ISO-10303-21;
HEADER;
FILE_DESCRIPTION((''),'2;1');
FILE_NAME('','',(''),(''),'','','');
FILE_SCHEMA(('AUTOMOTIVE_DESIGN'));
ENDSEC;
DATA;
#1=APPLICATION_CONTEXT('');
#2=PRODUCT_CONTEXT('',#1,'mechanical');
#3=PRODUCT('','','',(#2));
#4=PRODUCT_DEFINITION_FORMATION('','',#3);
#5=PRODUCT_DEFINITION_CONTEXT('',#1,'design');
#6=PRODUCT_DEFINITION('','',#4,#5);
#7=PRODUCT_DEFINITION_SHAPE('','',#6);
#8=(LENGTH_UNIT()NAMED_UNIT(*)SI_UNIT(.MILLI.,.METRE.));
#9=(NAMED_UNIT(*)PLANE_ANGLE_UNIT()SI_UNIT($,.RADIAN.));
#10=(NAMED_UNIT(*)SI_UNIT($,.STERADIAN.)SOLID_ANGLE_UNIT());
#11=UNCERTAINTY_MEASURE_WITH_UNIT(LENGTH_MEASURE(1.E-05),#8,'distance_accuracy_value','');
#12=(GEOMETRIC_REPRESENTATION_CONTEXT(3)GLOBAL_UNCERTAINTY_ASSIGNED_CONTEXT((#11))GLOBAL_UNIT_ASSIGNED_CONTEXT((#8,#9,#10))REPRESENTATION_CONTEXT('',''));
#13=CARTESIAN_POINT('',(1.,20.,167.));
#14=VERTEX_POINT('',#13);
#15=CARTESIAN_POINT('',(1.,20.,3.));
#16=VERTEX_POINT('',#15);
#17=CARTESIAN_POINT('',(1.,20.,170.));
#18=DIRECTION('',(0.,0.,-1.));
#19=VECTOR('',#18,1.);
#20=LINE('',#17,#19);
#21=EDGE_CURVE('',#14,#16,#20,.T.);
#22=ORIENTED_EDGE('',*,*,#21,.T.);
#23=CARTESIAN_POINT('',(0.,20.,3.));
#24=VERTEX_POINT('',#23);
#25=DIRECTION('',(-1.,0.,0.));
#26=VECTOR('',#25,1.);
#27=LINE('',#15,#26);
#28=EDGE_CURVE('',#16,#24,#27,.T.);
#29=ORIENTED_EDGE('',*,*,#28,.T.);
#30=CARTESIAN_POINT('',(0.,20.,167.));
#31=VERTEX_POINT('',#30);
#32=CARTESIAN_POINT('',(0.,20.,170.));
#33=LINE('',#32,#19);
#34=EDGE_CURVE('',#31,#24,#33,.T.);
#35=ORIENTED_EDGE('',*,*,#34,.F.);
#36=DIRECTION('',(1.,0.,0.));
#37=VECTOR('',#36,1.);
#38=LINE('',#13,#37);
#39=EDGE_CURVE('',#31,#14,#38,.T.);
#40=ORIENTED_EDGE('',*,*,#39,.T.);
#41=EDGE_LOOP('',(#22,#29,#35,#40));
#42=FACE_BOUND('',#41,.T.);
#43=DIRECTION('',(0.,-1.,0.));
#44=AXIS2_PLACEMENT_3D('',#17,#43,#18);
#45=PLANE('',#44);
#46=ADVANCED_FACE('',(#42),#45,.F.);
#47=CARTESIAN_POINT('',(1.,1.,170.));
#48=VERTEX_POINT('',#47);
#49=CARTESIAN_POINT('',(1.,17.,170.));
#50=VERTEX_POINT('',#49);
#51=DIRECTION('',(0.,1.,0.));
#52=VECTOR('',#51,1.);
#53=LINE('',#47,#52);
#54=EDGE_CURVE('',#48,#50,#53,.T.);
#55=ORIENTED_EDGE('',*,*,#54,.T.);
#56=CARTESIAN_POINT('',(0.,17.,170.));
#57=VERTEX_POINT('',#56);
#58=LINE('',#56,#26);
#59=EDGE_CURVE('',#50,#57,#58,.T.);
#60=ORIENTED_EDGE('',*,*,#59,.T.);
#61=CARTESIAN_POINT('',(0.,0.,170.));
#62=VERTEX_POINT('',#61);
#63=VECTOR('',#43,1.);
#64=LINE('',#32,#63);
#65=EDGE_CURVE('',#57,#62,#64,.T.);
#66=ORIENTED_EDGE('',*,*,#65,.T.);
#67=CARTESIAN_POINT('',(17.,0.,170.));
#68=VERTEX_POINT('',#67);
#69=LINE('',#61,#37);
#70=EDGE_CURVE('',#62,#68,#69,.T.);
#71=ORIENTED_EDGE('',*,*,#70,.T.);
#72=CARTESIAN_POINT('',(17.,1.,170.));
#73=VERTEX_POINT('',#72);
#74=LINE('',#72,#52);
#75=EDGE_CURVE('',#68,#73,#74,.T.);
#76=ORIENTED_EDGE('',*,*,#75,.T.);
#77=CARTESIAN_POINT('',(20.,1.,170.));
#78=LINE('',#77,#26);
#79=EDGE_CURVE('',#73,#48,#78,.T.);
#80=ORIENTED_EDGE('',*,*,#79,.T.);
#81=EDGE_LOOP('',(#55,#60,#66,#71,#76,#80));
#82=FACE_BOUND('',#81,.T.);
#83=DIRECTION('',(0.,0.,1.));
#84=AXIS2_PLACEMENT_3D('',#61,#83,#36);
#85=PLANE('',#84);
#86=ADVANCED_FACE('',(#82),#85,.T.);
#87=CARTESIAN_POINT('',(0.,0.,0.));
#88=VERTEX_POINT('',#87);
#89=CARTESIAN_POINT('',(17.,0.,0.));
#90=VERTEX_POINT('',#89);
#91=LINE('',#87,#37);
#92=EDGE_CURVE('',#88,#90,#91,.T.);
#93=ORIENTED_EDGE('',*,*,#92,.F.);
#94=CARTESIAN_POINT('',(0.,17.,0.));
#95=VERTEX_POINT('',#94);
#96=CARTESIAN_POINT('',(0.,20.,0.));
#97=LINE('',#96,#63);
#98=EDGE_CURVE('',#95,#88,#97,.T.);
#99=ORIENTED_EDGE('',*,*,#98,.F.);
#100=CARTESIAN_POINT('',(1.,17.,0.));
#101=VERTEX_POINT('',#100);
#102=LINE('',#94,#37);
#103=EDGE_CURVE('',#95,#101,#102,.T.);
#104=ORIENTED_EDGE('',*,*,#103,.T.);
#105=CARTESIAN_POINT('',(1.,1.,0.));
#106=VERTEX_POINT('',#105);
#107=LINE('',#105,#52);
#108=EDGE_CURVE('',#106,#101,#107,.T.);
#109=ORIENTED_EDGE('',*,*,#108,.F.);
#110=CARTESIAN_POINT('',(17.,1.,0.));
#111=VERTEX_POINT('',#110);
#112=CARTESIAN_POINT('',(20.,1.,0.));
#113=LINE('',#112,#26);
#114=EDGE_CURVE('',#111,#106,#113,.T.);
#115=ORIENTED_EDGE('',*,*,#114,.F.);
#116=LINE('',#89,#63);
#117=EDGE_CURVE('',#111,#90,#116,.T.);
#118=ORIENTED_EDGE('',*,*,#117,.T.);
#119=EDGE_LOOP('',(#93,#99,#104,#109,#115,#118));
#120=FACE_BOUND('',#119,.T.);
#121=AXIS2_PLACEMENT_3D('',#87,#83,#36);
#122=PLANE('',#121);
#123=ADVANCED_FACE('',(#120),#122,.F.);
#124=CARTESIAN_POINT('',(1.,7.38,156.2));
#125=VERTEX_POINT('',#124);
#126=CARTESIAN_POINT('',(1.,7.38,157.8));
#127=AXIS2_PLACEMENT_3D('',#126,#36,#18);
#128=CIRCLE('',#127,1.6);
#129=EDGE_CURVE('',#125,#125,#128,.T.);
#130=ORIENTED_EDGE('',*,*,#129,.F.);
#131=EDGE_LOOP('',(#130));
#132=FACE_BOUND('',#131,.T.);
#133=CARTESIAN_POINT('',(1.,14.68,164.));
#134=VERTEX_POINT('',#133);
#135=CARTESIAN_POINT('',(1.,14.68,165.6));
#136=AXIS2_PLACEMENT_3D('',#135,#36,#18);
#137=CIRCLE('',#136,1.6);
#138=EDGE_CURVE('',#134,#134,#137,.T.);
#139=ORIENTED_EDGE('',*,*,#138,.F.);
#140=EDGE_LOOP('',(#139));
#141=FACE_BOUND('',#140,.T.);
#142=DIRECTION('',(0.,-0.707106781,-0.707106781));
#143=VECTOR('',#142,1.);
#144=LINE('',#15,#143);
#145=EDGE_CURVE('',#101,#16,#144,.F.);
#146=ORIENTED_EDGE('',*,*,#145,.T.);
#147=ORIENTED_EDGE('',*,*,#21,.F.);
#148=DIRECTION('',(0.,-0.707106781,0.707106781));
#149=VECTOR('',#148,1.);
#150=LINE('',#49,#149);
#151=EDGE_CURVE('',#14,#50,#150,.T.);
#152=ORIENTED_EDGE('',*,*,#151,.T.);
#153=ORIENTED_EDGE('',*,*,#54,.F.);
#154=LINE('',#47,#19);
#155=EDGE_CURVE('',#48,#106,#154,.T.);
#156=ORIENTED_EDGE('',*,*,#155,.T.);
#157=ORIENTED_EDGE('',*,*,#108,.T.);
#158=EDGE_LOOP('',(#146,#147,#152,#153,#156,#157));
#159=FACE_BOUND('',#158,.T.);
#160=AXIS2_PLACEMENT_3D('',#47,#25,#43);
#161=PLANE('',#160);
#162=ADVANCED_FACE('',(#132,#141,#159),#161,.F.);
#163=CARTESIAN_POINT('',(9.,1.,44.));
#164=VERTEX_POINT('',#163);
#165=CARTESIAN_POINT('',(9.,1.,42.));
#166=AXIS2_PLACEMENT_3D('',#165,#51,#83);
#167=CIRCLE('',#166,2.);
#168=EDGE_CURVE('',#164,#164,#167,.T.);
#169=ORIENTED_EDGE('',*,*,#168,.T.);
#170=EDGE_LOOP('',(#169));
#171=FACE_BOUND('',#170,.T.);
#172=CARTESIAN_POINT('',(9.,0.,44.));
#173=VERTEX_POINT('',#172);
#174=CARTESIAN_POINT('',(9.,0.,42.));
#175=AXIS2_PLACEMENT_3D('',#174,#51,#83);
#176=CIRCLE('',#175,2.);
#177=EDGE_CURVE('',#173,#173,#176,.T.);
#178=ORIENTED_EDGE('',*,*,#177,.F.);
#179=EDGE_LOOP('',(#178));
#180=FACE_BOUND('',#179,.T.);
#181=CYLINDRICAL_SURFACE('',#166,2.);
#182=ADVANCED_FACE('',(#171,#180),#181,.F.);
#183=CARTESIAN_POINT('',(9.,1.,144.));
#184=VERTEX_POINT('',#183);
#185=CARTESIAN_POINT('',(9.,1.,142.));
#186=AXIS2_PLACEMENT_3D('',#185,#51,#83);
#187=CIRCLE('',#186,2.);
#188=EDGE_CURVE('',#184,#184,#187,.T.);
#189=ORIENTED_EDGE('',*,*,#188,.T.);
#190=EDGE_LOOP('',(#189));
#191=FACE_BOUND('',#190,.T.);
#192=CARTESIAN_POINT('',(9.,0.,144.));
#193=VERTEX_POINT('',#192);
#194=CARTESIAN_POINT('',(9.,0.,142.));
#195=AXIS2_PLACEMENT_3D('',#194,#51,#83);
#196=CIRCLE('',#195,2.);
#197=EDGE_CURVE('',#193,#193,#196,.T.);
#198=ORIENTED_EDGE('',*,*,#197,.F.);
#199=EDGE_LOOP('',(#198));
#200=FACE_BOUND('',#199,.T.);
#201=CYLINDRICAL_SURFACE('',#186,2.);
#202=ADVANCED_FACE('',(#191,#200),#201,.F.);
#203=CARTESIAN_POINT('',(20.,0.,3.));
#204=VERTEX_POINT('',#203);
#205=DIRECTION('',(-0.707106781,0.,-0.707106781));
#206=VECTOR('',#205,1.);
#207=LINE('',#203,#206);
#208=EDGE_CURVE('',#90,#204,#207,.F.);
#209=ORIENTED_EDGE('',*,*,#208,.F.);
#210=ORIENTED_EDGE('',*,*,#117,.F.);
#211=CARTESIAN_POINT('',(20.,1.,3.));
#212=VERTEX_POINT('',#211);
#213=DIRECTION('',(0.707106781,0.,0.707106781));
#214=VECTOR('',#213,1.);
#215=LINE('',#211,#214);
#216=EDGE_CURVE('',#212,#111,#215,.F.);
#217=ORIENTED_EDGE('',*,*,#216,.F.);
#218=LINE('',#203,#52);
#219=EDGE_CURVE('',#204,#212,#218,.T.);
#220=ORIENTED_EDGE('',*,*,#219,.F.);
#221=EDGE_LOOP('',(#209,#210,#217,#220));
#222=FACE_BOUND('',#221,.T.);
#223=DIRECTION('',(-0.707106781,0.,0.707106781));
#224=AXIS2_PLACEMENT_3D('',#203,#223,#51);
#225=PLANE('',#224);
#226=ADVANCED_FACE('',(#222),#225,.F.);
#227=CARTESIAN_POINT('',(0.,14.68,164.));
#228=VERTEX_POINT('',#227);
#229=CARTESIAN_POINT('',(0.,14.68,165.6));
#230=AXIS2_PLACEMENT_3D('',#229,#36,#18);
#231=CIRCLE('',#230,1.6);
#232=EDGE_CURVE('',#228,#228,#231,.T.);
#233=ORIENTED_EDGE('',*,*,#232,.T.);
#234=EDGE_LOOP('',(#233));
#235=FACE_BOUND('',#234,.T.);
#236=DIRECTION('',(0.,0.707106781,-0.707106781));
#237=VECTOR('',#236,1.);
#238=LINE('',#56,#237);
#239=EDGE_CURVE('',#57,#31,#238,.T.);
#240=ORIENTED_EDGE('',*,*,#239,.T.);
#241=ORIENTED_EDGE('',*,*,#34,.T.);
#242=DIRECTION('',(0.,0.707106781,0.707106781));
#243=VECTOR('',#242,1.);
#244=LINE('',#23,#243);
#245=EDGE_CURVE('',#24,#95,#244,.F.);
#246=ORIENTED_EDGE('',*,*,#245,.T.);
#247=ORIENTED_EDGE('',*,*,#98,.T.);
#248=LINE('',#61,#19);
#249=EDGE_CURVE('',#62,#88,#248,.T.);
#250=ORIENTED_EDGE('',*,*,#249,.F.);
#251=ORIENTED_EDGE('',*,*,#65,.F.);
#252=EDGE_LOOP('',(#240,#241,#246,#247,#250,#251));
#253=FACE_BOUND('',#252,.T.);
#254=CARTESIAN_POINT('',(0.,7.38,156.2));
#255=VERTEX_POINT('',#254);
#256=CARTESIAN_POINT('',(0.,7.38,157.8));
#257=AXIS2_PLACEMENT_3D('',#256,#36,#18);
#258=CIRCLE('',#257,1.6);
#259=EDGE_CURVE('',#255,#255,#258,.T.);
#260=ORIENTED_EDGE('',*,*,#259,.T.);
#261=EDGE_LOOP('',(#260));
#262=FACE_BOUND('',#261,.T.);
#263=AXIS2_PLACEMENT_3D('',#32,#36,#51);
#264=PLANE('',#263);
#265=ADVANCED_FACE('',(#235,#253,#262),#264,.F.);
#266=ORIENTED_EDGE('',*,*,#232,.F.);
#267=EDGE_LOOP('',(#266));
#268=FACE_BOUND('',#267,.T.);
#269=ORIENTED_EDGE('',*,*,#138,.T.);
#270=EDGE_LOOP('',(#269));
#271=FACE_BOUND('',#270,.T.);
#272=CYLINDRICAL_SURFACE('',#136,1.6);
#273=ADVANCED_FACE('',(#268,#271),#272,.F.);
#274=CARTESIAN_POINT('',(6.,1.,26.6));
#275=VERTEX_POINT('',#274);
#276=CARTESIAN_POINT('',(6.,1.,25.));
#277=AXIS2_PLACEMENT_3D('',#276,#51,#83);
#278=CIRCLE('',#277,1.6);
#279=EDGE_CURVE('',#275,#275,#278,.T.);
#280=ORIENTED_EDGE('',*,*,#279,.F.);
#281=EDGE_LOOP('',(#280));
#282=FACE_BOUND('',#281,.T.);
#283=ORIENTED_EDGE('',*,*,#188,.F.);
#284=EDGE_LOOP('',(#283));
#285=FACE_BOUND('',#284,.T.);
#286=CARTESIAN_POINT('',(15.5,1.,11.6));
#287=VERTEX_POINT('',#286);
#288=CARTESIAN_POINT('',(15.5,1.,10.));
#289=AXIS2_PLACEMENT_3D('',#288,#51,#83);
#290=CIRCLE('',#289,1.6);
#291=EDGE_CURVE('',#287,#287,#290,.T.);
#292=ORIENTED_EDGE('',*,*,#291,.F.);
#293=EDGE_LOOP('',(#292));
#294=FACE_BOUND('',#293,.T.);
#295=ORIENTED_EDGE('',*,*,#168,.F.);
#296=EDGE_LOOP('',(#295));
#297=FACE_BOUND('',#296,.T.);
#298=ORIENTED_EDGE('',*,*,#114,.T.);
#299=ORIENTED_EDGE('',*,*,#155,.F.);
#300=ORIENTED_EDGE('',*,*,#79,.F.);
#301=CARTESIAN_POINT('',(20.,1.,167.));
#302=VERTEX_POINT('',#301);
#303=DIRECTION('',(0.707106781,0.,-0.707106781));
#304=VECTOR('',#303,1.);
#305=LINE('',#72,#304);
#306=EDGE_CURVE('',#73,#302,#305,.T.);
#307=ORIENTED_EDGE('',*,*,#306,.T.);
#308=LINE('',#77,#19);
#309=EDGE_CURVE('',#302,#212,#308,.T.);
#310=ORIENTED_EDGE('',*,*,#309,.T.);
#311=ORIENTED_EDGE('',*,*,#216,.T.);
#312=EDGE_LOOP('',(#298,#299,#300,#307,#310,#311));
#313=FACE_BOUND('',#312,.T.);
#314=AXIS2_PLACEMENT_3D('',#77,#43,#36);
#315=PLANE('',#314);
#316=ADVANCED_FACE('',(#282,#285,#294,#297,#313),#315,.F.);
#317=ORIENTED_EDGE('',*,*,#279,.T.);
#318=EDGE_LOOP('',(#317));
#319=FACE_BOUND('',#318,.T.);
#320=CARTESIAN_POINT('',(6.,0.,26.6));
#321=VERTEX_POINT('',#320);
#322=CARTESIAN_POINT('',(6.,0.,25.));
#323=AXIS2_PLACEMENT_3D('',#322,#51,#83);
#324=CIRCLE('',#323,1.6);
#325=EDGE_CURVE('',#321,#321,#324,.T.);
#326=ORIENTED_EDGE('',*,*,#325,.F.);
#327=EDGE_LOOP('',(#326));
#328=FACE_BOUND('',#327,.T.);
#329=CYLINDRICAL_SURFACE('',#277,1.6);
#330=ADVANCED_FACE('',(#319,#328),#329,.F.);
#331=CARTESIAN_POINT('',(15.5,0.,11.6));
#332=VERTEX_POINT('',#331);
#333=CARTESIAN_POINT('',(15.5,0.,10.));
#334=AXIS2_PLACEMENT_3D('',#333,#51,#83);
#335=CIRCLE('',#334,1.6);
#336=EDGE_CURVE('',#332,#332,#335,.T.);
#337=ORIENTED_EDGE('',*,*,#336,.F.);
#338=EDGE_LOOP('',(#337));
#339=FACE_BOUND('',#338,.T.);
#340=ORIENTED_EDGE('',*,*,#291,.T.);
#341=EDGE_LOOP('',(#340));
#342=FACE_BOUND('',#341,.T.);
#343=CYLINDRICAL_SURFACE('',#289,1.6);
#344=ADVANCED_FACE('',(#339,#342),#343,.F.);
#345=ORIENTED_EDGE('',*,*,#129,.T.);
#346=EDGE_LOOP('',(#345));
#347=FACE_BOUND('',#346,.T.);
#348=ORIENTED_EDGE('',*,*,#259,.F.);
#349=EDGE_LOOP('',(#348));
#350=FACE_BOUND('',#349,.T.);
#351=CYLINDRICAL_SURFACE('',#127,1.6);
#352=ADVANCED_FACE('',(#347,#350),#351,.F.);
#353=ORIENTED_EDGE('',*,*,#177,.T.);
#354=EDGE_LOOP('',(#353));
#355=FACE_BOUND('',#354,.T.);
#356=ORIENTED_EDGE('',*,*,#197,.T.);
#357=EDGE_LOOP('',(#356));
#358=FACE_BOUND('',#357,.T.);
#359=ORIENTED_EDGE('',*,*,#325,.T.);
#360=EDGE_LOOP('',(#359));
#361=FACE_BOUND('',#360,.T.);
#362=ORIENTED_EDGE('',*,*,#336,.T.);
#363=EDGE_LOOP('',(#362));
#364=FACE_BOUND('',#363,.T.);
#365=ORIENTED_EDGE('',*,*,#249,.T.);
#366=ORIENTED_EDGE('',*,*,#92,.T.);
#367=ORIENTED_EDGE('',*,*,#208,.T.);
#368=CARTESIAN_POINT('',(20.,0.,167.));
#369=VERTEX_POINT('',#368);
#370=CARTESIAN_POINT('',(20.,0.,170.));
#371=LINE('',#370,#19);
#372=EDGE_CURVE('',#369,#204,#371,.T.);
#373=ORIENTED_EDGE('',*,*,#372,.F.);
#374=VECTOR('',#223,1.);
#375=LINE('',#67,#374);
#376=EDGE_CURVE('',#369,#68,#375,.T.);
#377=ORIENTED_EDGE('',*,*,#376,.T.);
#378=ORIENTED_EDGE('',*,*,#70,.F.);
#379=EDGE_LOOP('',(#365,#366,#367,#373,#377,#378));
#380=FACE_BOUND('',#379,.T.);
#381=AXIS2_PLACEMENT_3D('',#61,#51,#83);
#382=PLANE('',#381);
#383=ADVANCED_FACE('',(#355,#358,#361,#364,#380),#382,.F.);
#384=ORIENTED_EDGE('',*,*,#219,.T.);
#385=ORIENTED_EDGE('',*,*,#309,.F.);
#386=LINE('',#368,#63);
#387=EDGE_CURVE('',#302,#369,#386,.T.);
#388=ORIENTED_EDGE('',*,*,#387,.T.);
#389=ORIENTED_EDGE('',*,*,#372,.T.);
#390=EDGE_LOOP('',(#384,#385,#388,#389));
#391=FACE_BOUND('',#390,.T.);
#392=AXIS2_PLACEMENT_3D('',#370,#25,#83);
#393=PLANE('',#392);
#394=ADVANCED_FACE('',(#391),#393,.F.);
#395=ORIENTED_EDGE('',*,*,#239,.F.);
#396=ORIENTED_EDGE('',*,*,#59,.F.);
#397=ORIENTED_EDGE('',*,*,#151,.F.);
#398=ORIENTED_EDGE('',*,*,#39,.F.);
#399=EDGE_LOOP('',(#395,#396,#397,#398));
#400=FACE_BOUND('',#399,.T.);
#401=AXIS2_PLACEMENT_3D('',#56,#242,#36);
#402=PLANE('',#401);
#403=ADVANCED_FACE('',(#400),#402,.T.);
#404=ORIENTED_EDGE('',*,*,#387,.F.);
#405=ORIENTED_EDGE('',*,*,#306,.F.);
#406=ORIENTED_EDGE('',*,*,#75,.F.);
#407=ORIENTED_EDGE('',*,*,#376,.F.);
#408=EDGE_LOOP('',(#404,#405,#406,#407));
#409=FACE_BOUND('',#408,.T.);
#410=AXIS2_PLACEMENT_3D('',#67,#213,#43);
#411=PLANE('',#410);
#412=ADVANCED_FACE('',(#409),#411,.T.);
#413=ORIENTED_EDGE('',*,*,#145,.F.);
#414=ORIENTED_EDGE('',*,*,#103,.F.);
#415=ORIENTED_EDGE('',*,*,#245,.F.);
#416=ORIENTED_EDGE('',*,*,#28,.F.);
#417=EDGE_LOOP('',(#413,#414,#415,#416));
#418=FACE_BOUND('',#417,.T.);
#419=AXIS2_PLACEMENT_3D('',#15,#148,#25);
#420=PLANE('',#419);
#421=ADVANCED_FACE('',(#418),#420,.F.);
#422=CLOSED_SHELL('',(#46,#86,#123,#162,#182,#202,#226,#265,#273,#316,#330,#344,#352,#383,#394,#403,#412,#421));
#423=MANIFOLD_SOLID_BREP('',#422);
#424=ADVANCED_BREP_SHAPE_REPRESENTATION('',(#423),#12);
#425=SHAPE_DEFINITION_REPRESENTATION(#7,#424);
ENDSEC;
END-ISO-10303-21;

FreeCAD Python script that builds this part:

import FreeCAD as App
import Part
import Sketcher
from FreeCAD import Vector
Q = App.Units.Quantity


def edges_at(feature, points):
    """Names of the edges that pass closest to the given points."""
    edges = feature.Shape.Edges
    near = lambda p: min(range(len(edges)), key=lambda i: edges[i].distToShape(Part.Vertex(*p))[0])
    return sorted({f"Edge{near(p) + 1}" for p in points})

doc = App.newDocument("Part")
body = doc.addObject("PartDesign::Body", "Body")

# Sketch on XY plane
sketch1 = body.newObject("Sketcher::SketchObject", "Sketch")
sketch1.AttachmentSupport = (doc.getObject("XY_Plane"), [""])
sketch1.MapMode = "FlatFace"
sketch1.addGeometry(Part.LineSegment(Vector(0, 0, 0), Vector(20, 0, 0)), False)
sketch1.addGeometry(Part.LineSegment(Vector(20, 0, 0), Vector(20, 1, 0)), False)
sketch1.addGeometry(Part.LineSegment(Vector(20, 1, 0), Vector(1, 1, 0)), False)
sketch1.addGeometry(Part.LineSegment(Vector(1, 1, 0), Vector(1, 20, 0)), False)
sketch1.addGeometry(Part.LineSegment(Vector(1, 20, 0), Vector(0, 20, 0)), False)
sketch1.addGeometry(Part.LineSegment(Vector(0, 20, 0), Vector(0, 0, 0)), False)
sketch1.addConstraint(Sketcher.Constraint("Coincident", 0, 2, 1, 1))
sketch1.addConstraint(Sketcher.Constraint("Coincident", 1, 2, 2, 1))
sketch1.addConstraint(Sketcher.Constraint("Coincident", 2, 2, 3, 1))
sketch1.addConstraint(Sketcher.Constraint("Coincident", 3, 2, 4, 1))
sketch1.addConstraint(Sketcher.Constraint("Coincident", 4, 2, 5, 1))
sketch1.addConstraint(Sketcher.Constraint("Coincident", 5, 2, 0, 1))
sketch1.addConstraint(Sketcher.Constraint("Horizontal", 0))
sketch1.addConstraint(Sketcher.Constraint("Vertical", 1))
sketch1.addConstraint(Sketcher.Constraint("Horizontal", 2))
sketch1.addConstraint(Sketcher.Constraint("Vertical", 3))
sketch1.addConstraint(Sketcher.Constraint("Horizontal", 4))
sketch1.addConstraint(Sketcher.Constraint("Vertical", 5))
sketch1.addConstraint(Sketcher.Constraint("Coincident", 5, 2, -1, 1))
sketch1.addConstraint(Sketcher.Constraint("Equal", 4, 1))
sketch1.addConstraint(Sketcher.Constraint("Equal", 2, 3))
sketch1.addConstraint(Sketcher.Constraint("DistanceX", 0, 1, 0, 2, Q("20 mm")))
sketch1.addConstraint(Sketcher.Constraint("DistanceX", 2, 2, 2, 1, Q("19 mm")))
pad1 = body.newObject("PartDesign::Pad", "Pad")
pad1.Profile = sketch1
pad1.Length = 170
doc.recompute()

chamfer = body.newObject("PartDesign::Chamfer", "Chamfer")
chamfer.Base = (pad1, edges_at(pad1, [
    (20, 0.5, 170),
    (0.5, 20, 170),
    (0.5, 20, 0),
    (20, 0.5, 0),
]))
chamfer.Size = 3

# Sketch on XZ plane
sketch2 = body.newObject("Sketcher::SketchObject", "Sketch001")
sketch2.AttachmentSupport = (doc.getObject("XZ_Plane"), [""])
sketch2.MapMode = "FlatFace"
sketch2.AttachmentOffset = App.Placement(Vector(0, 0, -1), App.Rotation())
sketch2.addGeometry(Part.Circle(Vector(9, 42, 0), Vector(0, 0, 1), 2), False)
sketch2.addGeometry(Part.Circle(Vector(9, 142, 0), Vector(0, 0, 1), 2), False)
sketch2.addConstraint(Sketcher.Constraint("Equal", 0, 1))
sketch2.addConstraint(Sketcher.Constraint("Vertical", 0, 3, 1, 3))
sketch2.addConstraint(Sketcher.Constraint("Diameter", 0, Q("4 mm")))
sketch2.addConstraint(Sketcher.Constraint("DistanceX", -1, 1, 0, 3, Q("9 mm")))
sketch2.addConstraint(Sketcher.Constraint("DistanceY", -1, 1, 0, 3, Q("42 mm")))
sketch2.addConstraint(Sketcher.Constraint("DistanceY", -1, 1, 1, 3, Q("142 mm")))
doc.recompute()
hole = body.newObject("PartDesign::Hole", "Hole")
hole.Profile = sketch2
hole.ThreadType = "None"
hole.Diameter = 4
hole.DepthType = "ThroughAll"
hole.Reversed = True

# Sketch on YZ plane
sketch3 = body.newObject("Sketcher::SketchObject", "Sketch002")
sketch3.AttachmentSupport = (doc.getObject("YZ_Plane"), [""])
sketch3.MapMode = "FlatFace"
sketch3.AttachmentOffset = App.Placement(Vector(0, 0, 1), App.Rotation())
sketch3.addGeometry(Part.Circle(Vector(14.68, 165.6, 0), Vector(0, 0, 1), 1.6), False)
sketch3.addGeometry(Part.Circle(Vector(7.38, 157.8, 0), Vector(0, 0, 1), 1.6), False)
sketch3.addConstraint(Sketcher.Constraint("Equal", 0, 1))
sketch3.addConstraint(Sketcher.Constraint("Diameter", 0, Q("3.2 mm")))
sketch3.addConstraint(Sketcher.Constraint("DistanceY", -1, 1, 0, 3, Q("165.6 mm")))
sketch3.addConstraint(Sketcher.Constraint("DistanceY", -1, 1, 1, 3, Q("157.8 mm")))
sketch3.addConstraint(Sketcher.Constraint("DistanceX", 1, 3, 0, 3, Q("7.3 mm")))
sketch3.addConstraint(Sketcher.Constraint("DistanceX", -1, 1, 0, 3, Q("14.68 mm")))
doc.recompute()
hole2 = body.newObject("PartDesign::Hole", "Hole001")
hole2.Profile = sketch3
hole2.ThreadType = "None"
hole2.Diameter = 3.2
hole2.DepthType = "ThroughAll"

# Sketch on XZ plane
sketch4 = body.newObject("Sketcher::SketchObject", "Sketch003")
sketch4.AttachmentSupport = (doc.getObject("XZ_Plane"), [""])
sketch4.MapMode = "FlatFace"
sketch4.AttachmentOffset = App.Placement(Vector(0, 0, -1), App.Rotation())
sketch4.addGeometry(Part.Circle(Vector(15.5, 10, 0), Vector(0, 0, 1), 1.6), False)
sketch4.addGeometry(Part.Circle(Vector(6, 25, 0), Vector(0, 0, 1), 1.6), False)
sketch4.addConstraint(Sketcher.Constraint("Equal", 0, 1))
sketch4.addConstraint(Sketcher.Constraint("Diameter", 0, Q("3.2 mm")))
sketch4.addConstraint(Sketcher.Constraint("DistanceY", -1, 1, 0, 3, Q("10 mm")))
sketch4.addConstraint(Sketcher.Constraint("DistanceX", -1, 1, 1, 3, Q("6 mm")))
sketch4.addConstraint(Sketcher.Constraint("DistanceY", -1, 1, 1, 3, Q("25 mm")))
sketch4.addConstraint(Sketcher.Constraint("DistanceX", -1, 1, 0, 3, Q("15.5 mm")))
doc.recompute()
hole3 = body.newObject("PartDesign::Hole", "Hole002")
hole3.Profile = sketch4
hole3.ThreadType = "None"
hole3.Diameter = 3.2
hole3.DepthType = "ThroughAll"
hole3.Reversed = True

doc.recompute()
